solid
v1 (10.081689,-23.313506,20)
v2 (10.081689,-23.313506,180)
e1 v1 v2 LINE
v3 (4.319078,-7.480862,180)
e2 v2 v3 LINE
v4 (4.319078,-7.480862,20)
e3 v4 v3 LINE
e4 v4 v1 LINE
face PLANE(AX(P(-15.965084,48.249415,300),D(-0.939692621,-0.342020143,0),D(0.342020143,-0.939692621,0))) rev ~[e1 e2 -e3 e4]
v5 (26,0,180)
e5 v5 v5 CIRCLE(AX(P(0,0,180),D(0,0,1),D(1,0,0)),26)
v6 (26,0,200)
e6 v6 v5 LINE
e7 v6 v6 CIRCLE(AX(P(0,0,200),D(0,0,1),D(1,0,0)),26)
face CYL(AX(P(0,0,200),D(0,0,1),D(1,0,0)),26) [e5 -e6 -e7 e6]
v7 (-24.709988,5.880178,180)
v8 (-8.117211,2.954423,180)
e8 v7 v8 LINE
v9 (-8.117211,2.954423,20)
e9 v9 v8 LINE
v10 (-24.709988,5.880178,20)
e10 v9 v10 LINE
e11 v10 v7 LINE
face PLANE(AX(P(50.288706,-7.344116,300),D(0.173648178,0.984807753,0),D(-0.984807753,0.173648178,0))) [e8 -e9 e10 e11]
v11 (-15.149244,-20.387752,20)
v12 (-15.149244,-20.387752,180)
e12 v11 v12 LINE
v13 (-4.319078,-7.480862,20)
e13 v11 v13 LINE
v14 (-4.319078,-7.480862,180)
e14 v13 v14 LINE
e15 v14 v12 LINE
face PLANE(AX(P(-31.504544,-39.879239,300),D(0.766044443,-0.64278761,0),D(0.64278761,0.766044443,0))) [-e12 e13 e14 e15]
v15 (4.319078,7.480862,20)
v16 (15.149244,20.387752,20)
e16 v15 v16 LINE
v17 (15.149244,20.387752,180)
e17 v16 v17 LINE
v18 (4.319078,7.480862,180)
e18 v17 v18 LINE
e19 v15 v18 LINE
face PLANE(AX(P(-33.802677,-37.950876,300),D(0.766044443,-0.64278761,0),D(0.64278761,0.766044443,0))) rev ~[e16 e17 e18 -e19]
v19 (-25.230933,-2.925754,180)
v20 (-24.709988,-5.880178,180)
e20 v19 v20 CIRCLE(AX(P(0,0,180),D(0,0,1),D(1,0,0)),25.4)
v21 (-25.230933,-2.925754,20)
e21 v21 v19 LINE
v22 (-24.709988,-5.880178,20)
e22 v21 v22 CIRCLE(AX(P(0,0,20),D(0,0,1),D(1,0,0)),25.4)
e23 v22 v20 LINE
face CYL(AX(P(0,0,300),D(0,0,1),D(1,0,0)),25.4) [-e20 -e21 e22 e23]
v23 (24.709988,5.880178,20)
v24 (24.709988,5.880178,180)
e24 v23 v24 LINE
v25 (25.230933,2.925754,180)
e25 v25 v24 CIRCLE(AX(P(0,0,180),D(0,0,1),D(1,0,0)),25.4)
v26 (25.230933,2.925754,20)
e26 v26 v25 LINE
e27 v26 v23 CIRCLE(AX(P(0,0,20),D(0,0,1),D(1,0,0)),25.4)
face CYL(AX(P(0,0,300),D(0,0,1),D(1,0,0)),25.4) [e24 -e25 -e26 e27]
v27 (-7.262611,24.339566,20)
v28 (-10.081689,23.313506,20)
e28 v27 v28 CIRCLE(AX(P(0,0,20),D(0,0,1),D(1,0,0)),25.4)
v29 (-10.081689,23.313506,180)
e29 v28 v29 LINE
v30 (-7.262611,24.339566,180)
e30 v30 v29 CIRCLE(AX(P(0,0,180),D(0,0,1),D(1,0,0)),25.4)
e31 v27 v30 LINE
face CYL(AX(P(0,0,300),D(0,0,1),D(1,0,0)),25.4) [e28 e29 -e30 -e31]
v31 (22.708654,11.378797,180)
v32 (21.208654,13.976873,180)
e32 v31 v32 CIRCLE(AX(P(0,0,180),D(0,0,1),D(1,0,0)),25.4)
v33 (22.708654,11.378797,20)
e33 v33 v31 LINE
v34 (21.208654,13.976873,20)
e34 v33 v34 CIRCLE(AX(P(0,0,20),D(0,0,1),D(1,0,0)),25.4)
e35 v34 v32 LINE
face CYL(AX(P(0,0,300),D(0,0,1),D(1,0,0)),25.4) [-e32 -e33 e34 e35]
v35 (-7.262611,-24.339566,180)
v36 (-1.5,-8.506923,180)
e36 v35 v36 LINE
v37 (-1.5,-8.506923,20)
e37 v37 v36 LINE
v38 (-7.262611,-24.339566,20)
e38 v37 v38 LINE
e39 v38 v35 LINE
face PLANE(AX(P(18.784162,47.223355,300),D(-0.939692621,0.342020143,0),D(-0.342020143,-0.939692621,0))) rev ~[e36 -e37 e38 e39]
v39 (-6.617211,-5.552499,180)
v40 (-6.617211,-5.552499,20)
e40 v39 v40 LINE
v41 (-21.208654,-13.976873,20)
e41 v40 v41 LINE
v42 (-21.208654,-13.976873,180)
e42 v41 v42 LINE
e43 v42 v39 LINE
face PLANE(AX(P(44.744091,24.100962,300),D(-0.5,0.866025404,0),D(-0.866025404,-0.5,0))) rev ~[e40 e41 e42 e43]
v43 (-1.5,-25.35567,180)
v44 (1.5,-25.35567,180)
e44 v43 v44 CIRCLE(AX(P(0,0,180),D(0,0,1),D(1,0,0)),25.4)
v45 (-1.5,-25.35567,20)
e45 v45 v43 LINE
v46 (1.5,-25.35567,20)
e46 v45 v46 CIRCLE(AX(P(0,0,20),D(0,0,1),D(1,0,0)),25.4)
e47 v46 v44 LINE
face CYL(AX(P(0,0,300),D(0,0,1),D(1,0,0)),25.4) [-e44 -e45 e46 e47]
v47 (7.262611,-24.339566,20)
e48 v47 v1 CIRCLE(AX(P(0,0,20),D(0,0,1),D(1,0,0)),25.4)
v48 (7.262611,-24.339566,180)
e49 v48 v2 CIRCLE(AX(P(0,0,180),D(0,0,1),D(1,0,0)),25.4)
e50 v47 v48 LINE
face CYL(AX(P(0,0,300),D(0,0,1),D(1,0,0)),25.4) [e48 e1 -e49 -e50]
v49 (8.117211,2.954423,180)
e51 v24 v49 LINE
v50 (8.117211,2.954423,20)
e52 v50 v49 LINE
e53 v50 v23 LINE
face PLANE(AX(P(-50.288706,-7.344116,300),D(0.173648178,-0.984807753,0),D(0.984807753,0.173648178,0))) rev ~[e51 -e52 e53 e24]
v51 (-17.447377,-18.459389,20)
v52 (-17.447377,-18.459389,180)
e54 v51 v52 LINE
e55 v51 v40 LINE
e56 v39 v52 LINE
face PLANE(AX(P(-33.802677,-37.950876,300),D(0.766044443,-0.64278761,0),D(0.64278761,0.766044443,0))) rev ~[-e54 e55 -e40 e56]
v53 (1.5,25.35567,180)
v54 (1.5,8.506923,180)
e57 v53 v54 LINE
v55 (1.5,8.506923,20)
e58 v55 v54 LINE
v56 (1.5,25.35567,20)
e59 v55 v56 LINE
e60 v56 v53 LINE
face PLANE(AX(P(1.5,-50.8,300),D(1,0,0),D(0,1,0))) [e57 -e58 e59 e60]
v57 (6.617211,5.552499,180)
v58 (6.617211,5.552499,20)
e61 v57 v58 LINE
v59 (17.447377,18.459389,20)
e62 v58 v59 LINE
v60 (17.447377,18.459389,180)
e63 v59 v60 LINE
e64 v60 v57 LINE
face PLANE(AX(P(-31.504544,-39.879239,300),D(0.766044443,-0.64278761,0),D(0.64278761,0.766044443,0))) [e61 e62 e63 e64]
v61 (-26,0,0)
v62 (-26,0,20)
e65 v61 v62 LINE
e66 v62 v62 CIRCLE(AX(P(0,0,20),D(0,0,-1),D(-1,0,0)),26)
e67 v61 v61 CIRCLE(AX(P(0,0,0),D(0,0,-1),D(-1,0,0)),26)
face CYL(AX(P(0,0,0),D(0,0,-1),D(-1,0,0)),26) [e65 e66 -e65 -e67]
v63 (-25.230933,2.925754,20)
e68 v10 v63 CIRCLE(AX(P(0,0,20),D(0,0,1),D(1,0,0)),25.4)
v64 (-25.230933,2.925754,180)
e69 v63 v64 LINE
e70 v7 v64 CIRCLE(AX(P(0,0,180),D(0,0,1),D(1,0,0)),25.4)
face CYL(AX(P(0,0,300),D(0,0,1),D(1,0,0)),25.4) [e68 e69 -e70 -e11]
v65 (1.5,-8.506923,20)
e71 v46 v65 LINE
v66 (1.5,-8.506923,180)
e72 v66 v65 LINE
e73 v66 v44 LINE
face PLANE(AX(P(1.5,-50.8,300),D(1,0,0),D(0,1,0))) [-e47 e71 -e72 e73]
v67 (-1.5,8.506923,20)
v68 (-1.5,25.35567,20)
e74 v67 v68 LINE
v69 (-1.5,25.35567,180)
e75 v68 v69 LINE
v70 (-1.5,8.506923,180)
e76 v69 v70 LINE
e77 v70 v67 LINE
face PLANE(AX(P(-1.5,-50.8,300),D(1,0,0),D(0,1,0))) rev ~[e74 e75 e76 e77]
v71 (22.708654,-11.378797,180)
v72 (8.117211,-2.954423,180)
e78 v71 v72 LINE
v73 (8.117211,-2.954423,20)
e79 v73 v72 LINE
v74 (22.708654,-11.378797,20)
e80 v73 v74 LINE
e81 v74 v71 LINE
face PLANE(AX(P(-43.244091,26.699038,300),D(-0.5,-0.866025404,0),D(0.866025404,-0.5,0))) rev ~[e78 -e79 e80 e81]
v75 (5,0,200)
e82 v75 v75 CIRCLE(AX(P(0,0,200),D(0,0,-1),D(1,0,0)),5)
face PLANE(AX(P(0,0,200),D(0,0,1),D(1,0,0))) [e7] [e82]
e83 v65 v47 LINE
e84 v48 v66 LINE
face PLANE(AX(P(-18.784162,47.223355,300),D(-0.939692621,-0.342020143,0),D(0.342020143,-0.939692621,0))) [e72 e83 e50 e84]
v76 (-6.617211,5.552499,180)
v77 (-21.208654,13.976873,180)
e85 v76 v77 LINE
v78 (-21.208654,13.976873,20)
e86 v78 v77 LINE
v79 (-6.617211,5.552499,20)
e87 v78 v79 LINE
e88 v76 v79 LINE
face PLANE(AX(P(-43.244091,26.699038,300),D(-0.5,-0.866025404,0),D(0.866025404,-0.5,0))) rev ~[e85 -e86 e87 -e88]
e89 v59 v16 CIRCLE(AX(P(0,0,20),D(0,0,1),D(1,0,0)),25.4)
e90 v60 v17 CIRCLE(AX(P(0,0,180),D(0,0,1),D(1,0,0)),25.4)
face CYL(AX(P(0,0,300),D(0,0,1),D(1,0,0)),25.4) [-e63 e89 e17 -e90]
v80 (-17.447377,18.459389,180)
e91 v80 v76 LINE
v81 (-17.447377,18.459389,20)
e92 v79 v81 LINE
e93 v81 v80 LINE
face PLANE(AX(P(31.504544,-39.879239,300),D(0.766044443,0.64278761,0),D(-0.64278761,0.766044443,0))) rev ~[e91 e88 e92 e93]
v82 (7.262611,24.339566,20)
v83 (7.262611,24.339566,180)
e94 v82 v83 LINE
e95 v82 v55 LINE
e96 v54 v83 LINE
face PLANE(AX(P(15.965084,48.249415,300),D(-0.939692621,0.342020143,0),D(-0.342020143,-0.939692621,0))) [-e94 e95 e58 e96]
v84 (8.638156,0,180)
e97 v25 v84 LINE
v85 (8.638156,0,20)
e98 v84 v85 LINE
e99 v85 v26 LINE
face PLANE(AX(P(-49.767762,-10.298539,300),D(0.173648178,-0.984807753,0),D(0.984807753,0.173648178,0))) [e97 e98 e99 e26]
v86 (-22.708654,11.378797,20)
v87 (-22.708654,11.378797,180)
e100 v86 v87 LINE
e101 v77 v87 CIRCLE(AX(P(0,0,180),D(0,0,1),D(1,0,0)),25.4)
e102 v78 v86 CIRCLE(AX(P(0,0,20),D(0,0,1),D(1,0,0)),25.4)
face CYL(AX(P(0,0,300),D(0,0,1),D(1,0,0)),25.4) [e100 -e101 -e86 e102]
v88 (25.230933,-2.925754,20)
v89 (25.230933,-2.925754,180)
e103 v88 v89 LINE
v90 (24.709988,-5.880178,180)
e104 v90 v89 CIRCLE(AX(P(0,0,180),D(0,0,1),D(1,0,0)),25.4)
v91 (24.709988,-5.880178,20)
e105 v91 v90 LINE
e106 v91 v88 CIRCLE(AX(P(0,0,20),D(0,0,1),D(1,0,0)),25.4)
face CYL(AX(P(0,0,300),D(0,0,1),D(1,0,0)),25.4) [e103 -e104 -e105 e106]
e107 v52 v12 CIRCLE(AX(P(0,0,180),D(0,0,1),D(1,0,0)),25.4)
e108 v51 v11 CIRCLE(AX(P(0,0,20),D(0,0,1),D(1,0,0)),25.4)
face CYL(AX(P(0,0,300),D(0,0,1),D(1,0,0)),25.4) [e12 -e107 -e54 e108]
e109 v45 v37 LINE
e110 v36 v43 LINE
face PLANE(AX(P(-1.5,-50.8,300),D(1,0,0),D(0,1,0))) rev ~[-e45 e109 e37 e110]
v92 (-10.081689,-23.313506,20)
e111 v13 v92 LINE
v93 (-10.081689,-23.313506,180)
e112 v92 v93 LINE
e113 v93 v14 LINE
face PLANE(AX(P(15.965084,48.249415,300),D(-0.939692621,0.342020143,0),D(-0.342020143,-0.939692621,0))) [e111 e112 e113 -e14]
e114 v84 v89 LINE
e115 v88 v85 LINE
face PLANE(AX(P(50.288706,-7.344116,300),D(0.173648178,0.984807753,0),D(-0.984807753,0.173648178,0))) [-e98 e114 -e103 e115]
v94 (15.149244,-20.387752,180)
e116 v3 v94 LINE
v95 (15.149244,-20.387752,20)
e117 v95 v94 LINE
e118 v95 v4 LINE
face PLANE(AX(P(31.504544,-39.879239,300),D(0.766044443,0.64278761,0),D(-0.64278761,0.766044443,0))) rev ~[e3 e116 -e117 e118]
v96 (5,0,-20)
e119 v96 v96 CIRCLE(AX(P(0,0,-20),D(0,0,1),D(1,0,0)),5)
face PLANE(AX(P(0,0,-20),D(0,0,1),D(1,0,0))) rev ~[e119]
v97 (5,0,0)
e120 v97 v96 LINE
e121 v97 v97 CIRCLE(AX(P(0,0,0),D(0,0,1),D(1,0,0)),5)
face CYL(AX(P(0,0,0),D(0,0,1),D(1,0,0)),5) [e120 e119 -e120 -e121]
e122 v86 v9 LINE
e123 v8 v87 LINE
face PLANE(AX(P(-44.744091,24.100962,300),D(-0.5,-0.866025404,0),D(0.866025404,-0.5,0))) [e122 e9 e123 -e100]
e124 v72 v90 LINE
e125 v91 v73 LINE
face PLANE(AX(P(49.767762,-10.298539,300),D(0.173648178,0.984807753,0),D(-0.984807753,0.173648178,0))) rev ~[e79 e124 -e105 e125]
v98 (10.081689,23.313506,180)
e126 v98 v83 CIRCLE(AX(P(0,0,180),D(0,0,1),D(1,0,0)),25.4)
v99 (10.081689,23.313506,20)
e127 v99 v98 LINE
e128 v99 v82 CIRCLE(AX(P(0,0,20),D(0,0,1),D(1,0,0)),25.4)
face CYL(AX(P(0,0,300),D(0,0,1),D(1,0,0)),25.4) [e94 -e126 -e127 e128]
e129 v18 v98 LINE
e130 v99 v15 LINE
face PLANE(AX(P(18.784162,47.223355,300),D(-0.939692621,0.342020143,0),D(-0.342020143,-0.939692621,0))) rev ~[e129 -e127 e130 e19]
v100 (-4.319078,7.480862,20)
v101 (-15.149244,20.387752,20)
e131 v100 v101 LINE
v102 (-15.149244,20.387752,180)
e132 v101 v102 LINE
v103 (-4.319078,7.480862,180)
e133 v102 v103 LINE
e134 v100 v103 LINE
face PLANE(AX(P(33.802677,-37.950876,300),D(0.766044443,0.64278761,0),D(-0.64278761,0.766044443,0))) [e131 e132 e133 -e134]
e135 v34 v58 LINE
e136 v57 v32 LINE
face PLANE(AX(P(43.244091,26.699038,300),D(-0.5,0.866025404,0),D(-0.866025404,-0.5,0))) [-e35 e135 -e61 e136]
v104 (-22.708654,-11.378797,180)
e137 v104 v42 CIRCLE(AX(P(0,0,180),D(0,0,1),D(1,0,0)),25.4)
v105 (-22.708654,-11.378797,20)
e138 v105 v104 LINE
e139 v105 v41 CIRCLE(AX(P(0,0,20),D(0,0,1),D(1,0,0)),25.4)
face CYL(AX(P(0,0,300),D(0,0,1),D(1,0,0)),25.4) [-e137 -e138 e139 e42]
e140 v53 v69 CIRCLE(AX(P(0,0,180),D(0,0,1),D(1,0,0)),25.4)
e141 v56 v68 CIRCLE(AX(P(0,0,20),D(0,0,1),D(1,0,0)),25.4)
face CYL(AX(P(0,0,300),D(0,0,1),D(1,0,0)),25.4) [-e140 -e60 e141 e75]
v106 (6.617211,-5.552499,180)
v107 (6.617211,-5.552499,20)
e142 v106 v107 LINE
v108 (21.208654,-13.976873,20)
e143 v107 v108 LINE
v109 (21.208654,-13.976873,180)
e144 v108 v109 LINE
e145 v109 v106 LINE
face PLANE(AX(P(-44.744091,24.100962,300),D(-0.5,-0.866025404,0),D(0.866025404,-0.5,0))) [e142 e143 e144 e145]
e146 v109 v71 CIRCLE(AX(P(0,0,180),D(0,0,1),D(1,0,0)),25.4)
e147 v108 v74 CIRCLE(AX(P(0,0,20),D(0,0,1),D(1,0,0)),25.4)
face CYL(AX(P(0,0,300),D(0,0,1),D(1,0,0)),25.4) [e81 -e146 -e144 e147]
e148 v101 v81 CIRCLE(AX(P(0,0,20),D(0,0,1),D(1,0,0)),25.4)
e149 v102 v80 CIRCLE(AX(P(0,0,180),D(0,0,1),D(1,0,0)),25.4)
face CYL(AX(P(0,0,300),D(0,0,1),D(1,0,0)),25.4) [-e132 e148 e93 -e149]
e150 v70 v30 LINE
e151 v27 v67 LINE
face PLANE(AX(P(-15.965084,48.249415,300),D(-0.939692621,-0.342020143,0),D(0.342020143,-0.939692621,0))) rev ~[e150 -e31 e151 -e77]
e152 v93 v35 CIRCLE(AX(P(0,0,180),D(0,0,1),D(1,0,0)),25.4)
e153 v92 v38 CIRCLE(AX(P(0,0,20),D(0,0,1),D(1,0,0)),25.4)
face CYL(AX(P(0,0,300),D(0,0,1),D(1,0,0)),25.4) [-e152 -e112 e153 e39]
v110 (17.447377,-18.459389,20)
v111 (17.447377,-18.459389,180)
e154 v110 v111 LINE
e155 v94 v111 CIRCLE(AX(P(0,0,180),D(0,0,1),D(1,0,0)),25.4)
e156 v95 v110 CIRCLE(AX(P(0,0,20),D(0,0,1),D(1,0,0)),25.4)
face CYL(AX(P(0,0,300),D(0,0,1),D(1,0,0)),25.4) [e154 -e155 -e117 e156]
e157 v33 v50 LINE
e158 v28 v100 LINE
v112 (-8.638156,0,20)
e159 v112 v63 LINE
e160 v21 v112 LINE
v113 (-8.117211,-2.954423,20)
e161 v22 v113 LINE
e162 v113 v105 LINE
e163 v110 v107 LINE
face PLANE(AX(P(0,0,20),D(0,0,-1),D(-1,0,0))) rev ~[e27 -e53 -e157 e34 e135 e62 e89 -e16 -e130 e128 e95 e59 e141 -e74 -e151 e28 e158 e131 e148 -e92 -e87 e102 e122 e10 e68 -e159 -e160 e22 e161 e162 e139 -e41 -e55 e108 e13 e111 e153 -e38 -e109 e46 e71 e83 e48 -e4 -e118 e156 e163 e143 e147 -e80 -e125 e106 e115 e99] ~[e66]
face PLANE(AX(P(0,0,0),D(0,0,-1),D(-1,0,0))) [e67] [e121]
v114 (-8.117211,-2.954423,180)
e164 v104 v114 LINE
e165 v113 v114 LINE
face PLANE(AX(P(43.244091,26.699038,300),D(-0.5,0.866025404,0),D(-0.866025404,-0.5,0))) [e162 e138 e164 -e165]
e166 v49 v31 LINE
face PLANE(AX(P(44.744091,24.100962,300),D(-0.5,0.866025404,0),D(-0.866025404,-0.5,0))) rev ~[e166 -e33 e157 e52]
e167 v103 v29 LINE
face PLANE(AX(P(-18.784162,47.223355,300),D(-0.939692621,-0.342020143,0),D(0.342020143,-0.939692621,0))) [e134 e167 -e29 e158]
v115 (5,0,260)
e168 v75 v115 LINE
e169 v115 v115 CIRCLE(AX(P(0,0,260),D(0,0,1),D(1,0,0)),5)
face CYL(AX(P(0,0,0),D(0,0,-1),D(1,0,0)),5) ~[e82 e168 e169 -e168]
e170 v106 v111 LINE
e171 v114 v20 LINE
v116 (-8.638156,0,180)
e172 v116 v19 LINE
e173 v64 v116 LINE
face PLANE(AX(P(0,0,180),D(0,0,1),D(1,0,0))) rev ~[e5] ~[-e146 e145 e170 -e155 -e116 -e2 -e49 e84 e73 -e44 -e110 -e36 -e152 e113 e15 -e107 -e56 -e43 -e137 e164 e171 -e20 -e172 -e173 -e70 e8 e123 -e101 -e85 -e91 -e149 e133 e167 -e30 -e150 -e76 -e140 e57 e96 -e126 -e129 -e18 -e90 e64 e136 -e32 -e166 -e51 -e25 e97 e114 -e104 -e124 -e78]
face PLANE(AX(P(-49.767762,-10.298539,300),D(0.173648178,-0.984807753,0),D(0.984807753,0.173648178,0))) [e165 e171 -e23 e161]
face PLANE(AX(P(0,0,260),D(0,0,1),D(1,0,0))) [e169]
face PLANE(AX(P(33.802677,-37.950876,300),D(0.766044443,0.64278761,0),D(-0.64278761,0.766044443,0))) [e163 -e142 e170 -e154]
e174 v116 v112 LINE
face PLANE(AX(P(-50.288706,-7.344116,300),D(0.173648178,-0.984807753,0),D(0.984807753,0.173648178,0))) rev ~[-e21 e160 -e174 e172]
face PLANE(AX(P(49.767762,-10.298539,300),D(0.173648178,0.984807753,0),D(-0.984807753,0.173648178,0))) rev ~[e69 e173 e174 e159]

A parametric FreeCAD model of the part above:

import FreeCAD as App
import Part
import Sketcher
Q = App.Units.Quantity


def add_polygon(sketch, points):
    """Adds a closed chain of lines whose ends are joined by coincident constraints."""
    first, n = sketch.GeometryCount, len(points)
    for a, b in zip(points, points[1:] + points[:1]):
        sketch.addGeometry(Part.LineSegment(App.Vector(*a, 0), App.Vector(*b, 0)), False)
    for i in range(n):
        sketch.addConstraint(Sketcher.Constraint("Coincident", first + i, 2, first + (i + 1) % n, 1))

doc = App.newDocument("Part")
body = doc.addObject("PartDesign::Body", "Body")

sketch1 = body.newObject("Sketcher::SketchObject", "Sketch")
sketch1.AttachmentSupport = (doc.getObject("XY_Plane"), [""])
sketch1.MapMode = "FlatFace"
sketch1.addGeometry(Part.Circle(App.Vector(0, 0, 0), App.Vector(0, 0, 1), 6), False)
sketch1.addConstraint(Sketcher.Constraint("Coincident", 0, 3, -1, 1))
sketch1.addConstraint(Sketcher.Constraint("Diameter", 0, Q("12.7 mm")))
pad1 = body.newObject("PartDesign::Pad", "Pad")
pad1.Profile = sketch1
pad1.Length = 300

sketch2 = body.newObject("Sketcher::SketchObject", "Sketch001")
sketch2.AttachmentSupport = (doc.getObject("XY_Plane"), [""])
sketch2.MapMode = "FlatFace"
sketch2.AttachmentOffset = App.Placement(App.Vector(0, 0, 300), App.Rotation())
add_polygon(sketch2, [(-1.5, 50.8), (-1.5, -50.8), (1.5, -50.8), (1.5, 50.8)])
sketch2.addConstraint(Sketcher.Constraint("Vertical", 0))
sketch2.addConstraint(Sketcher.Constraint("Horizontal", 1))
sketch2.addConstraint(Sketcher.Constraint("Vertical", 2))
sketch2.addConstraint(Sketcher.Constraint("Horizontal", 3))
sketch2.addConstraint(Sketcher.Constraint("Symmetric", 0, 2, 2, 2, -1, 1))
sketch2.addConstraint(Sketcher.Constraint("DistanceX", 1, 1, 1, 2, Q("3 mm")))
sketch2.addConstraint(Sketcher.Constraint("DistanceY", 0, 2, 0, 1, Q("101.6 mm")))
pad2 = body.newObject("PartDesign::Pad", "Pad001")
pad2.Profile = sketch2
pad2.Type = "UpToLast"
pad2.Reversed = True
doc.recompute()

polarpattern = body.newObject("PartDesign::PolarPattern", "PolarPattern")
polarpattern.Originals = [pad2]
polarpattern.Axis = (doc.getObject("Z_Axis"), [""])
polarpattern.Angle = 360
polarpattern.Occurrences = 9
body.Tip = polarpattern

sketch3 = body.newObject("Sketcher::SketchObject", "Sketch002")
sketch3.AttachmentSupport = (doc.getObject("XY_Plane"), [""])
sketch3.MapMode = "FlatFace"
sketch3.AttachmentOffset = App.Placement(App.Vector(0, 0, 300), App.Rotation())
sketch3.addGeometry(Part.Circle(App.Vector(0, 0, 0), App.Vector(0, 0, 1), 60), False)
sketch3.addGeometry(Part.Circle(App.Vector(0, 0, 0), App.Vector(0, 0, 1), 25), False)
sketch3.addConstraint(Sketcher.Constraint("Coincident", 0, 3, -1, 1))
sketch3.addConstraint(Sketcher.Constraint("Coincident", 1, 3, -1, 1))
sketch3.addConstraint(Sketcher.Constraint("Diameter", 1, Q("50.8 mm")))
sketch3.addConstraint(Sketcher.Constraint("Diameter", 0, Q("120.049857 mm")))
pocket1 = body.newObject("PartDesign::Pocket", "Pocket")
pocket1.Profile = sketch3
pocket1.Length = 317.2

sketch4 = body.newObject("Sketcher::SketchObject", "Sketch003")
sketch4.AttachmentSupport = (doc.getObject("XZ_Plane"), [""])
sketch4.MapMode = "FlatFace"
add_polygon(sketch4, [(-107, 200), (-107, 600), (103, 600), (103, 200)])
sketch4.addConstraint(Sketcher.Constraint("Vertical", 0))
sketch4.addConstraint(Sketcher.Constraint("Horizontal", 1))
sketch4.addConstraint(Sketcher.Constraint("Vertical", 2))
sketch4.addConstraint(Sketcher.Constraint("Horizontal", 3))
sketch4.addConstraint(Sketcher.Constraint("DistanceY", 0, 1, 0, 2, Q("400 mm")))
sketch4.addConstraint(Sketcher.Constraint("DistanceY", -1, 1, 0, 2, Q("600 mm")))
sketch4.addConstraint(Sketcher.Constraint("DistanceX", 1, 1, 1, 2, Q("209.953471 mm")))
sketch4.addConstraint(Sketcher.Constraint("DistanceX", 0, 2, -1, 1, Q("106.572127 mm")))
pocket2 = body.newObject("PartDesign::Pocket", "Pocket001")
pocket2.Profile = sketch4
pocket2.Length = 317.2
pocket2.Midplane = True

sketch5 = body.newObject("Sketcher::SketchObject", "Sketch004")
sketch5.AttachmentSupport = (doc.getObject("XY_Plane"), [""])
sketch5.MapMode = "FlatFace"
sketch5.addGeometry(Part.Circle(App.Vector(0, 0, 0), App.Vector(0, 0, 1), 5), False)
sketch5.addConstraint(Sketcher.Constraint("Coincident", 0, 3, -1, 1))
sketch5.addConstraint(Sketcher.Constraint("Diameter", 0, Q("10 mm")))
pad3 = body.newObject("PartDesign::Pad", "Pad002")
pad3.Profile = sketch5
pad3.Type = "TwoLengths"
pad3.Length = 260
pad3.Length2 = 20

sketch6 = body.newObject("Sketcher::SketchObject", "Sketch005")
sketch6.AttachmentSupport = (doc.getObject("XY_Plane"), [""])
sketch6.MapMode = "FlatFace"
sketch6.addGeometry(Part.Circle(App.Vector(0, 0, 0), App.Vector(0, 0, 1), 26), False)
sketch6.addConstraint(Sketcher.Constraint("Coincident", 0, 3, -1, 1))
sketch6.addConstraint(Sketcher.Constraint("Diameter", 0, Q("52 mm")))
pad4 = body.newObject("PartDesign::Pad", "Pad003")
pad4.Profile = sketch6
pad4.Length = 20

sketch7 = body.newObject("Sketcher::SketchObject", "Sketch006")
sketch7.AttachmentSupport = (doc.getObject("XY_Plane"), [""])
sketch7.MapMode = "FlatFace"
sketch7.AttachmentOffset = App.Placement(App.Vector(0, 0, 200), App.Rotation())
sketch7.addGeometry(Part.Circle(App.Vector(0, 0, 0), App.Vector(0, 0, 1), 26), False)
sketch7.addConstraint(Sketcher.Constraint("Coincident", 0, 3, -1, 1))
sketch7.addConstraint(Sketcher.Constraint("Diameter", 0, Q("52 mm")))
pad5 = body.newObject("PartDesign::Pad", "Pad004")
pad5.Profile = sketch7
pad5.Length = 20
pad5.Reversed = True

doc.recompute()
